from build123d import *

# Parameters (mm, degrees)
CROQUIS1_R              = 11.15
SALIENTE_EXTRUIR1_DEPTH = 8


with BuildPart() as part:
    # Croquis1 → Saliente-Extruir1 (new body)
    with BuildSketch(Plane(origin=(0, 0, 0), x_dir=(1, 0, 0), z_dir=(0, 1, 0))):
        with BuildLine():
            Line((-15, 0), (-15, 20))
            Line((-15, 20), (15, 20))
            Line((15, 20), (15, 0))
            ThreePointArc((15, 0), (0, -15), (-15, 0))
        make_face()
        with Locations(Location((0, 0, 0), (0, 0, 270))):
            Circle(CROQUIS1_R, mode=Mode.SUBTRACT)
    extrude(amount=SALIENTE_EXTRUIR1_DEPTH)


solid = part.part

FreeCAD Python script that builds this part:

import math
import FreeCAD as App
import Part
import Sketcher
from FreeCAD import Vector

doc = App.newDocument("Part")
body = doc.addObject("PartDesign::Body", "Body")

# Sketch on XZ plane
sketch1 = doc.addObject("Sketcher::SketchObject", "Sketch")
body.addObject(sketch1)
sketch1.AttachmentSupport = (doc.XZ_Plane, [""])
sketch1.MapMode = "FlatFace"
sketch1.addGeometry(Part.LineSegment(Vector(-15, -20, 0), Vector(-15, 0, 0)), False)
sketch1.addGeometry(Part.ArcOfCircle(Part.Circle(Vector(0, 0, 0), Vector(0, 0, 1), 15), math.radians(0), math.radians(180)), False)
sketch1.addGeometry(Part.LineSegment(Vector(15, 0, 0), Vector(15, -20, 0)), False)
sketch1.addGeometry(Part.LineSegment(Vector(15, -20, 0), Vector(-15, -20, 0)), False)
sketch1.addGeometry(Part.Circle(Vector(0, 0, 0), Vector(0, 0, 1), 11), False)
sketch1.addConstraint(Sketcher.Constraint("Tangent", 0, 2, 1, 2))
sketch1.addConstraint(Sketcher.Constraint("Tangent", 1, 1, 2, 1))
sketch1.addConstraint(Sketcher.Constraint("Coincident", 2, 2, 3, 1))
sketch1.addConstraint(Sketcher.Constraint("Coincident", 3, 2, 0, 1))
sketch1.addConstraint(Sketcher.Constraint("Vertical", 0))
sketch1.addConstraint(Sketcher.Constraint("Vertical", 2))
sketch1.addConstraint(Sketcher.Constraint("Horizontal", 3))
sketch1.addConstraint(Sketcher.Constraint("Coincident", 1, 3, -1, 1))
sketch1.addConstraint(Sketcher.Constraint("Coincident", 4, 3, -1, 1))
sketch1.addConstraint(Sketcher.Constraint("Radius", 1, 15.0))
sketch1.addConstraint(Sketcher.Constraint("Diameter", 4, 22.3))
sketch1.addConstraint(Sketcher.Constraint("DistanceY", 0, 1, 0, 2, 20.0))
pad1 = doc.addObject("PartDesign::Pad", "Pad")
body.addObject(pad1)
pad1.Profile = sketch1
pad1.Length = 8
pad1.Reversed = True

doc.recompute()
